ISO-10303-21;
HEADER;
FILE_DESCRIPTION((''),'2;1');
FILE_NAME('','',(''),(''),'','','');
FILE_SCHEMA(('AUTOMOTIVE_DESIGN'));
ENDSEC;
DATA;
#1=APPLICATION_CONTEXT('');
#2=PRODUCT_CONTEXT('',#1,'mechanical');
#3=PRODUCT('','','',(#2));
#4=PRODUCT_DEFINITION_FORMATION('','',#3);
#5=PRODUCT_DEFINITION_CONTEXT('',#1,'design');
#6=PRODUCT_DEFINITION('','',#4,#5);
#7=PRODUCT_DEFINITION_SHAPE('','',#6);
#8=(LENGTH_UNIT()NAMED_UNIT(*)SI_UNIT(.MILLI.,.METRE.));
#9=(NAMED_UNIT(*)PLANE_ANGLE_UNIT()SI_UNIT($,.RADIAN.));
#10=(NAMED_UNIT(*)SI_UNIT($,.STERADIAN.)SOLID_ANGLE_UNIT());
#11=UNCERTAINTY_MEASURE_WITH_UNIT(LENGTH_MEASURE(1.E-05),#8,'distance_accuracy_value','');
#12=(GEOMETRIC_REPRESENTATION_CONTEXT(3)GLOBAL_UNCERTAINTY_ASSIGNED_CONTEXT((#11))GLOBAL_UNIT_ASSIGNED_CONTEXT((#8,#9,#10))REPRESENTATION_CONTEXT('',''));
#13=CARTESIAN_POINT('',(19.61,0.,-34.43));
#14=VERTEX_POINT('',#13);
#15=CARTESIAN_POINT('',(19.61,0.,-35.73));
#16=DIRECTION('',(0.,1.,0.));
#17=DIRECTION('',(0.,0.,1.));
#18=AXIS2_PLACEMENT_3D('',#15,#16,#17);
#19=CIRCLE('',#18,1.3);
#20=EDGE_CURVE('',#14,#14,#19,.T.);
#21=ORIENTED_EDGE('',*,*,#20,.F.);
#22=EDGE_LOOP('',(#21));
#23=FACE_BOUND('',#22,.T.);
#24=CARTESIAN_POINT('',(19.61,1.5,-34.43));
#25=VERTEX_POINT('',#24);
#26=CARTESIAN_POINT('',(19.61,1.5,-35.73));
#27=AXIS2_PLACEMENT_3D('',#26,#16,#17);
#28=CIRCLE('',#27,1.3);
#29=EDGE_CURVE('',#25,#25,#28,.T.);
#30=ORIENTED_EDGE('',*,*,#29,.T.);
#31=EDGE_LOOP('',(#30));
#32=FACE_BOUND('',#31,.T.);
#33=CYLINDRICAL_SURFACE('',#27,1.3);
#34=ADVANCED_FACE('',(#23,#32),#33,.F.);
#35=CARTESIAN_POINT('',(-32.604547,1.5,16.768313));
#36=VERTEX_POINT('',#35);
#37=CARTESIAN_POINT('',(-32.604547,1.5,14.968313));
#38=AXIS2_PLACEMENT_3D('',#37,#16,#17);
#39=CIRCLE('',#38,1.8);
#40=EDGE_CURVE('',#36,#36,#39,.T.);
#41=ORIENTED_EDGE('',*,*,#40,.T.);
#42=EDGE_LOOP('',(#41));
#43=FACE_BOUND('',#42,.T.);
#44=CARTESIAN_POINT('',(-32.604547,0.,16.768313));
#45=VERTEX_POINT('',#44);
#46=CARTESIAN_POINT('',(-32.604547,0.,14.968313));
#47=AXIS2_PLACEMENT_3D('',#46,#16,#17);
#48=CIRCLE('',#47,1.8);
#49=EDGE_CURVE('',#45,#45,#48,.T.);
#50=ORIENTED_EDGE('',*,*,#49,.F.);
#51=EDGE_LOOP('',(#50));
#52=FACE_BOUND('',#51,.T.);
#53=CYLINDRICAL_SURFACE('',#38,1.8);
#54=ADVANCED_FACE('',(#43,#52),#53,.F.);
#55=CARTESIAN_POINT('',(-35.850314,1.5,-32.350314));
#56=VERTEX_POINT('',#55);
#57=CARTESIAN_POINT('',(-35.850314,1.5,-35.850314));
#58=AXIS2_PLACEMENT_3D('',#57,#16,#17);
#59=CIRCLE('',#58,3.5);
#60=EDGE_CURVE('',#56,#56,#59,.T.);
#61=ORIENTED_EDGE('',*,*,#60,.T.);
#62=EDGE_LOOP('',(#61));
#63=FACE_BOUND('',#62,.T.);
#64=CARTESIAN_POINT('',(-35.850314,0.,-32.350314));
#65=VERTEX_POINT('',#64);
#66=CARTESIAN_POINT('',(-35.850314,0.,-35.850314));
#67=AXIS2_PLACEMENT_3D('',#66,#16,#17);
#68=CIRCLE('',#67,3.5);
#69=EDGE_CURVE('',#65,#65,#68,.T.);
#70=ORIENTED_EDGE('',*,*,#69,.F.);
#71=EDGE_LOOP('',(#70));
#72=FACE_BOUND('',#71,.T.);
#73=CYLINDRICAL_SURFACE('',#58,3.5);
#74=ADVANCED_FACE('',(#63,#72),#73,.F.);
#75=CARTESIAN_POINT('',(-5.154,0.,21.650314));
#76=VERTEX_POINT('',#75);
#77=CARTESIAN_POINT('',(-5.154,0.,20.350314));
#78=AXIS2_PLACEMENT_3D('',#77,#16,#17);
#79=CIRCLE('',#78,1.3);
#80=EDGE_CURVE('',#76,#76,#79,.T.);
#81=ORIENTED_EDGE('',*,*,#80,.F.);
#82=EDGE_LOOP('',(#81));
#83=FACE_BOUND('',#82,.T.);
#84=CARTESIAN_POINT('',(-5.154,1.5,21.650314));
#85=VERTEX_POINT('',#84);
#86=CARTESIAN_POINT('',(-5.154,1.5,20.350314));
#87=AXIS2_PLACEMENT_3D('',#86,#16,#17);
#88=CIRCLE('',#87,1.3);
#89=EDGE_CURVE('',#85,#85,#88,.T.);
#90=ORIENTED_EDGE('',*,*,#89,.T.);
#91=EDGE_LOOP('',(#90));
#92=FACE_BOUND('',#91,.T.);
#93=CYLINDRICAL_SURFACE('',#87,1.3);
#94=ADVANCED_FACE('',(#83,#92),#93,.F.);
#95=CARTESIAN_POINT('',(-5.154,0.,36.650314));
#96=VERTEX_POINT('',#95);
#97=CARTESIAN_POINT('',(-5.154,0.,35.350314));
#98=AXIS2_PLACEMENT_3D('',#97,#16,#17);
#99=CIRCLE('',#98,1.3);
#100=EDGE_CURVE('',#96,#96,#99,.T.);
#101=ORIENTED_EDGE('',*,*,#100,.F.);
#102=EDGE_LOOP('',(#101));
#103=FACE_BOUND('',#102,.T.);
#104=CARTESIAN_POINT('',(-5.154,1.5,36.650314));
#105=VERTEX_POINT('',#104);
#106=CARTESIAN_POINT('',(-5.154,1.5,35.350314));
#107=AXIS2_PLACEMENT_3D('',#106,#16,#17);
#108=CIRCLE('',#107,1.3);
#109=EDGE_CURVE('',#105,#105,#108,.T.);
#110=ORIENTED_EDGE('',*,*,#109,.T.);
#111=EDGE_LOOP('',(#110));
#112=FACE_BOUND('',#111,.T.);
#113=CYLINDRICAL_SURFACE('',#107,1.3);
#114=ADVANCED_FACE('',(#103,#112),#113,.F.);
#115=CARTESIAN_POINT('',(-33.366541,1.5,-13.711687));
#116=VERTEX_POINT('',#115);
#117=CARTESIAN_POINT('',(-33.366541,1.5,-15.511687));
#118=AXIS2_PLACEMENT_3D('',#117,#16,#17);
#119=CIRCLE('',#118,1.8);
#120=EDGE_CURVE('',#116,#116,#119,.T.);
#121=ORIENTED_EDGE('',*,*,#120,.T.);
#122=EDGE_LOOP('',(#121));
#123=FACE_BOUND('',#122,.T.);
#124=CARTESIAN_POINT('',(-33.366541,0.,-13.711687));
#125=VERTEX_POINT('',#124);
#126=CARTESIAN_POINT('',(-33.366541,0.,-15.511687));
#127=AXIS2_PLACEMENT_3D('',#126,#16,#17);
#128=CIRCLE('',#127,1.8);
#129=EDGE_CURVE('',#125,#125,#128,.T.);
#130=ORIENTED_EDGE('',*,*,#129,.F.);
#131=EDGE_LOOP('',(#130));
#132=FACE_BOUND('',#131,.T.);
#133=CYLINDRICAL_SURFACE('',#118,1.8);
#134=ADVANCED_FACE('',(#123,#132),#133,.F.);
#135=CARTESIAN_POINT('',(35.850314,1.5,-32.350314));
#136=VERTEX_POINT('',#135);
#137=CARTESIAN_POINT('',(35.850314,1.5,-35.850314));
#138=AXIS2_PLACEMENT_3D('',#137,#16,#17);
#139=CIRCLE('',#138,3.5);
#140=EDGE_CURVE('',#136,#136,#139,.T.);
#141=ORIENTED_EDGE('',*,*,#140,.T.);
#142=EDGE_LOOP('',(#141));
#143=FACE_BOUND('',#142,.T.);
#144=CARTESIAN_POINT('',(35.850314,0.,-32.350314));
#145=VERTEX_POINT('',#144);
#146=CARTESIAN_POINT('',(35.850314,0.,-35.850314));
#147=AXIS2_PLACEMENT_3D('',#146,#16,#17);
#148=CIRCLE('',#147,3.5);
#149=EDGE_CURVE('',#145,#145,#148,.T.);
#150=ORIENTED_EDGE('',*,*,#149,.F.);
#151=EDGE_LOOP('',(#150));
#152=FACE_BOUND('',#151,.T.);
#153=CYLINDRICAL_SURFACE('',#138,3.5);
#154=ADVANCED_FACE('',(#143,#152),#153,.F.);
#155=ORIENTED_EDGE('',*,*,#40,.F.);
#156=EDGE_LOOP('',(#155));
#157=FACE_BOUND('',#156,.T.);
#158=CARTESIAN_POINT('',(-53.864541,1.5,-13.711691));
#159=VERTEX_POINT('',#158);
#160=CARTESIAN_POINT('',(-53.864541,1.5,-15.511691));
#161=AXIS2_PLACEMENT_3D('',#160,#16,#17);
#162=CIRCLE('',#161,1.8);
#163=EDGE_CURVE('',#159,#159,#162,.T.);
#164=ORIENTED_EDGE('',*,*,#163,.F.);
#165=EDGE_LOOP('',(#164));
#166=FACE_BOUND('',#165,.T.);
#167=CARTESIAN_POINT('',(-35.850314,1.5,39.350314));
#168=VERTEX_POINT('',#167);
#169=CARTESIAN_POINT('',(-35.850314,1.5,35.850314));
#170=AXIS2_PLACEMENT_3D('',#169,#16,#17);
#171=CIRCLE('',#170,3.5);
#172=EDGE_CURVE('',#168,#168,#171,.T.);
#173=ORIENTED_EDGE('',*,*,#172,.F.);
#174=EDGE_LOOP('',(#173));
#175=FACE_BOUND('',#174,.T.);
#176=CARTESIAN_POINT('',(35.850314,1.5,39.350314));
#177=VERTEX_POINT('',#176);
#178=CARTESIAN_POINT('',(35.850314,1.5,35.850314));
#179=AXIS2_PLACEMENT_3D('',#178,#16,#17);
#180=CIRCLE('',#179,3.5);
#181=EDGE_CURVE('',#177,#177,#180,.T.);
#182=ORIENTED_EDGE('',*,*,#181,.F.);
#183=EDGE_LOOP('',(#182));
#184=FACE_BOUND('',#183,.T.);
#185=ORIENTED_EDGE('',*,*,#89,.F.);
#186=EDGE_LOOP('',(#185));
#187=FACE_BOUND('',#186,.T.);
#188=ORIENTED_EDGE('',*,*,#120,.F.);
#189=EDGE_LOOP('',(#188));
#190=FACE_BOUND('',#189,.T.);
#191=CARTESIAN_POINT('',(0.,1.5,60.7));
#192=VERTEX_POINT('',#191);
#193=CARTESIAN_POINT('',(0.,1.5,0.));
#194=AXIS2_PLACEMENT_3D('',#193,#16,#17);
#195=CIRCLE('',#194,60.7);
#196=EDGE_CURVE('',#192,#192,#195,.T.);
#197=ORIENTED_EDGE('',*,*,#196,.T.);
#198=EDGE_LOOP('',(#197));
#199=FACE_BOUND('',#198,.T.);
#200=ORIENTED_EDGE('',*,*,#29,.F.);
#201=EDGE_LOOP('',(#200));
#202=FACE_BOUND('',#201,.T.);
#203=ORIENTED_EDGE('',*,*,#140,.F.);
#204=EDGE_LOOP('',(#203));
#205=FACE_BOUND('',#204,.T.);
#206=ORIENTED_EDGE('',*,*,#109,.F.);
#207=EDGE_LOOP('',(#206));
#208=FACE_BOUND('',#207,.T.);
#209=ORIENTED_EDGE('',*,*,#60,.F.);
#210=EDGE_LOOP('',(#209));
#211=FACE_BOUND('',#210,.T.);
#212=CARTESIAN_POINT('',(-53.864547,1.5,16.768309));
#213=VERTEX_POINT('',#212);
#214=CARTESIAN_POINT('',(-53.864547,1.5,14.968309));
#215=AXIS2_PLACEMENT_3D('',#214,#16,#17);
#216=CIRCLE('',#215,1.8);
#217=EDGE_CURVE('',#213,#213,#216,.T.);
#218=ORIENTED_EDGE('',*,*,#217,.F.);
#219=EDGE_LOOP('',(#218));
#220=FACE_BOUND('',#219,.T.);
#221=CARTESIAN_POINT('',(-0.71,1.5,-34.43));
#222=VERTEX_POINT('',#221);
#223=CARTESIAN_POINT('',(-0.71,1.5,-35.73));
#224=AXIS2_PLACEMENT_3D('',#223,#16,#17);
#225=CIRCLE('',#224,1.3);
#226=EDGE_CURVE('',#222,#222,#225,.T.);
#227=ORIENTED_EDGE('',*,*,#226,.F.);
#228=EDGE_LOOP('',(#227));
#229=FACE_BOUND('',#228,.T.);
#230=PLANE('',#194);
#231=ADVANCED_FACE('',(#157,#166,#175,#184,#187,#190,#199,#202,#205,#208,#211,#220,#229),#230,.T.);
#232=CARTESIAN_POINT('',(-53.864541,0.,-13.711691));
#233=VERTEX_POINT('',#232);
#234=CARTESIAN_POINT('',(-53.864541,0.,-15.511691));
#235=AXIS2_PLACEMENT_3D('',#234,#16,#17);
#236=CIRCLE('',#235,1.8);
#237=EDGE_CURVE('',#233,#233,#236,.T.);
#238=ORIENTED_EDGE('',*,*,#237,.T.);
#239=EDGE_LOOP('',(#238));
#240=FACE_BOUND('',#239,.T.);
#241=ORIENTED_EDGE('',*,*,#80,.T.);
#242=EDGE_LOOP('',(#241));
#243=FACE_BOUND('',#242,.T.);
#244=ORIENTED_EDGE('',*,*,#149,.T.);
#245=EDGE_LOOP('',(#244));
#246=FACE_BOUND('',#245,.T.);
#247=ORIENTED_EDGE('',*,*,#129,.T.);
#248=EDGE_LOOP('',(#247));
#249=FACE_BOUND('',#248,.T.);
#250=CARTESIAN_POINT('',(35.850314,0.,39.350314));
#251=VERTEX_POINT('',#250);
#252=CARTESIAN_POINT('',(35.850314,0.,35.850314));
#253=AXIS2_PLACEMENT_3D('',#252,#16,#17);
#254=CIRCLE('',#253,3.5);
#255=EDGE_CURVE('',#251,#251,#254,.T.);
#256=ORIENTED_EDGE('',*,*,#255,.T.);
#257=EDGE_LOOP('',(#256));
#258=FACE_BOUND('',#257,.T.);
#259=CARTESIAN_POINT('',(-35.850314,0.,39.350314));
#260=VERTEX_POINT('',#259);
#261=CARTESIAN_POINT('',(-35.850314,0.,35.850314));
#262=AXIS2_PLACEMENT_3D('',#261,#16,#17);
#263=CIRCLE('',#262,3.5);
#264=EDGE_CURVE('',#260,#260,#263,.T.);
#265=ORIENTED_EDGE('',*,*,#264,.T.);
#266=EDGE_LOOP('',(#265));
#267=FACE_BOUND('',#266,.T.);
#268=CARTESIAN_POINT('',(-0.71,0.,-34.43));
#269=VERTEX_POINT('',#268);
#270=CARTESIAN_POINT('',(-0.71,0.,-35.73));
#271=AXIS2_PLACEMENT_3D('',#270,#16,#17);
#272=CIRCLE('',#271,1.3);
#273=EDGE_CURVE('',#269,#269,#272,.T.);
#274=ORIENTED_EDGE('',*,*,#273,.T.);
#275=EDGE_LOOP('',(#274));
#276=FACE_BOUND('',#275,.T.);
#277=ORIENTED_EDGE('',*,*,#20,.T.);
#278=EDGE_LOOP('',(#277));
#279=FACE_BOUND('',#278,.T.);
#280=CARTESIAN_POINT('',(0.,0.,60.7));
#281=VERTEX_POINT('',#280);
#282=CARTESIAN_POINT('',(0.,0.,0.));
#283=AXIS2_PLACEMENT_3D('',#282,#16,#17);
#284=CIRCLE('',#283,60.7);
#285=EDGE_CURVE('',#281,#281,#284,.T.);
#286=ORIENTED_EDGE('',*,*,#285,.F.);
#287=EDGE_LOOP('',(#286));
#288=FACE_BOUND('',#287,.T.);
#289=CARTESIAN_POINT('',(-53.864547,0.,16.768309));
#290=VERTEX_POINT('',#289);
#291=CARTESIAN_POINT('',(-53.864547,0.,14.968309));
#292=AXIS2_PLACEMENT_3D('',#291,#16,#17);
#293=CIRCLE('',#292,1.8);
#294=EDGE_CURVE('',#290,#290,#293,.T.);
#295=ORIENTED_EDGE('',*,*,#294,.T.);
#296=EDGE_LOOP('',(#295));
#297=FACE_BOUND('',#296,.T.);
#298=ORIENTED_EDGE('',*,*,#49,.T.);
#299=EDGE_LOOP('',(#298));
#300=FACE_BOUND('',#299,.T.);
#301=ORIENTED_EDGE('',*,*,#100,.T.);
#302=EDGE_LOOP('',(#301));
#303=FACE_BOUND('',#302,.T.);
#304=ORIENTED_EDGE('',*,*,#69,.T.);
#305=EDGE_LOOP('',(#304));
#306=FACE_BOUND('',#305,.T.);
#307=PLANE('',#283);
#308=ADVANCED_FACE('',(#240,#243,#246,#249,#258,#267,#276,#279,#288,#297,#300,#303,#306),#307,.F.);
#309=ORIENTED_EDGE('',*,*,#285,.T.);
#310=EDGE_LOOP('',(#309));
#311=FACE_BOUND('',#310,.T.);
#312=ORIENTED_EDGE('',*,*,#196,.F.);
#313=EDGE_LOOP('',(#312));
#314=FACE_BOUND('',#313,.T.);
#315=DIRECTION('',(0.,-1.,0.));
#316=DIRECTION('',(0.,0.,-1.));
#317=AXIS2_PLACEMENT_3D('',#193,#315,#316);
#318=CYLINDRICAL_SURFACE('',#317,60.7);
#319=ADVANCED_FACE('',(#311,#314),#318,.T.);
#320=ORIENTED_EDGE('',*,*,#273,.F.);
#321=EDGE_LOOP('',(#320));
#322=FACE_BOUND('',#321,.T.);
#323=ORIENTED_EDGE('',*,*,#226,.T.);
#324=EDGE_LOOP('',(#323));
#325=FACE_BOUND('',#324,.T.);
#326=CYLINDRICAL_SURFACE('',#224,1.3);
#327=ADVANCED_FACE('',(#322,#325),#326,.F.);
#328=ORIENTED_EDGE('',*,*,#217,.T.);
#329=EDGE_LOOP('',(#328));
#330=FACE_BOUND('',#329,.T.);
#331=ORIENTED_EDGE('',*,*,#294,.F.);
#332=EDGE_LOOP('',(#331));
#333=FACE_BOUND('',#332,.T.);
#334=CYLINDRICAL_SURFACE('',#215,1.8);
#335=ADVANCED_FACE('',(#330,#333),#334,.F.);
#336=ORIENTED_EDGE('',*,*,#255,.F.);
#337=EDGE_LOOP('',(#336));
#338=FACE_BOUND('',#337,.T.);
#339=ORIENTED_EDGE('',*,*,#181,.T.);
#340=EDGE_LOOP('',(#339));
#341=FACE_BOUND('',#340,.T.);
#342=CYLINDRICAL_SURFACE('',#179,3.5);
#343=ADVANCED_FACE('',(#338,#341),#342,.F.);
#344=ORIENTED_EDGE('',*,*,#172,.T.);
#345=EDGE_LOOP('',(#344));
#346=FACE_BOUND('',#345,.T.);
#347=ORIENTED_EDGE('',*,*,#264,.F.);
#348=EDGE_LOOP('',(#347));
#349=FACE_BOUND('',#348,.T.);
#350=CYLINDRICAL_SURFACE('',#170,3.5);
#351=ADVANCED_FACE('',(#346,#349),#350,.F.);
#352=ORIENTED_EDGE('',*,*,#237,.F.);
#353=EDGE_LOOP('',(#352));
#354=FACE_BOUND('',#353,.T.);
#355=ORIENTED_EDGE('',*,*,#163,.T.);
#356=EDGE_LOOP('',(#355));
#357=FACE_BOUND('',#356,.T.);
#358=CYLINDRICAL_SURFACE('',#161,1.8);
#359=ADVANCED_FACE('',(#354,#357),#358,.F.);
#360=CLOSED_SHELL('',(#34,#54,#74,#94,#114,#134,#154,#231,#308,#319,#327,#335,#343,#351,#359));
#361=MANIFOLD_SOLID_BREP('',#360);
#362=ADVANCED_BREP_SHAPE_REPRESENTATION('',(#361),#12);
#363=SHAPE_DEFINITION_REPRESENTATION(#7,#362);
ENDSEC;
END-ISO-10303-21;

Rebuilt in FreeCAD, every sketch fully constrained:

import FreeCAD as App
import Part
import Sketcher

doc = App.newDocument("Part")
body = doc.addObject("PartDesign::Body", "Body")

# Sketch on XZ plane
sketch1 = doc.addObject("Sketcher::SketchObject", "Sketch")
body.addObject(sketch1)
sketch1.AttachmentSupport = (doc.XZ_Plane, [""])
sketch1.MapMode = "FlatFace"
sketch1.addGeometry(Part.Circle(App.Vector(0, 0, 0), App.Vector(0, 0, 1), 61), False)
sketch1.addConstraint([
    Sketcher.Constraint("Coincident", 0, 3, -1, 1),
    Sketcher.Constraint("Diameter", 0, 121.4),
])
pad1 = doc.addObject("PartDesign::Pad", "Pad")
body.addObject(pad1)
pad1.Profile = sketch1
pad1.Length = 1.5
pad1.Reversed = True

# Sketch on XZ plane
sketch2 = doc.addObject("Sketcher::SketchObject", "Sketch001")
body.addObject(sketch2)
sketch2.AttachmentSupport = (doc.XZ_Plane, [""])
sketch2.MapMode = "FlatFace"
sketch2.AttachmentOffset = App.Placement(App.Vector(0, 0, -1.5), App.Rotation())
sketch2.addGeometry(Part.Circle(App.Vector(-35.9, 35.9, 0), App.Vector(0, 0, 1), 3.5), False)
sketch2.addConstraint([
    Sketcher.Constraint("Diameter", 0, 7.0),
    Sketcher.Constraint("DistanceX", 0, 3, -1, 1, 35.850314),
    Sketcher.Constraint("DistanceY", -1, 1, 0, 3, 35.850314),
])
doc.recompute()
hole = doc.addObject("PartDesign::Hole", "Hole")
body.addObject(hole)
hole.Profile = sketch2
hole.ThreadType = "None"
hole.Diameter = 7
hole.DepthType = "ThroughAll"
hole.Reversed = True
doc.recompute()

polarpattern = doc.addObject("PartDesign::PolarPattern", "PolarPattern")
body.addObject(polarpattern)
polarpattern.Originals = [hole]
polarpattern.Axis = (doc.Y_Axis, [""])
polarpattern.Angle = 360
polarpattern.Occurrences = 4
body.Tip = polarpattern

# Sketch on XZ plane
sketch3 = doc.addObject("Sketcher::SketchObject", "Sketch002")
body.addObject(sketch3)
sketch3.AttachmentSupport = (doc.XZ_Plane, [""])
sketch3.MapMode = "FlatFace"
sketch3.AttachmentOffset = App.Placement(App.Vector(0, 0, -1.5), App.Rotation())
sketch3.addGeometry([
    Part.Circle(App.Vector(-0.7, -35.7, 0), App.Vector(0, 0, 1), 1.3),
    Part.Circle(App.Vector(19.6, -35.7, 0), App.Vector(0, 0, 1), 1.3),
    Part.Circle(App.Vector(-5.2, 20.4, 0), App.Vector(0, 0, 1), 1.3),
    Part.Circle(App.Vector(-5.2, 35.4, 0), App.Vector(0, 0, 1), 1.3),
], False)
sketch3.addConstraint([
    Sketcher.Constraint("Equal", 0, 1),
    Sketcher.Constraint("Equal", 1, 2),
    Sketcher.Constraint("Equal", 2, 3),
    Sketcher.Constraint("Horizontal", 0, 3, 1, 3),
    Sketcher.Constraint("Vertical", 2, 3, 3, 3),
    Sketcher.Constraint("Diameter", 0, 2.6),
    Sketcher.Constraint("DistanceY", 2, 3, 3, 3, 15.0),
    Sketcher.Constraint("DistanceX", 0, 3, -1, 1, 0.71),
    Sketcher.Constraint("DistanceY", 0, 3, -1, 1, 35.73),
    Sketcher.Constraint("DistanceX", -1, 1, 1, 3, 19.61),
    Sketcher.Constraint("DistanceX", 2, 3, -1, 1, 5.154),
    Sketcher.Constraint("DistanceY", -1, 1, 2, 3, 20.350314),
])
doc.recompute()
hole2 = doc.addObject("PartDesign::Hole", "Hole001")
body.addObject(hole2)
hole2.Profile = sketch3
hole2.ThreadType = "None"
hole2.Diameter = 2.6
hole2.DepthType = "ThroughAll"
hole2.Reversed = True

# Sketch on XZ plane
sketch4 = doc.addObject("Sketcher::SketchObject", "Sketch003")
body.addObject(sketch4)
sketch4.AttachmentSupport = (doc.XZ_Plane, [""])
sketch4.MapMode = "FlatFace"
sketch4.AttachmentOffset = App.Placement(App.Vector(0, 0, -1.5), App.Rotation())
sketch4.addGeometry([
    Part.Circle(App.Vector(-53.9, -15.5, 0), App.Vector(0, 0, 1), 1.8),
    Part.Circle(App.Vector(-53.9, 15, 0), App.Vector(0, 0, 1), 1.8),
    Part.Circle(App.Vector(-32.6, 15, 0), App.Vector(0, 0, 1), 1.8),
    Part.Circle(App.Vector(-33.4, -15.5, 0), App.Vector(0, 0, 1), 1.8),
], False)
sketch4.addConstraint([
    Sketcher.Constraint("Equal", 0, 1),
    Sketcher.Constraint("Equal", 1, 2),
    Sketcher.Constraint("Equal", 2, 3),
    Sketcher.Constraint("Diameter", 0, 3.6),
    Sketcher.Constraint("DistanceY", 0, 3, 1, 3, 30.48),
    Sketcher.Constraint("DistanceX", 1, 3, 2, 3, 21.26),
    Sketcher.Constraint("DistanceY", 3, 3, 2, 3, 30.48),
    Sketcher.Constraint("DistanceX", 0, 3, 3, 3, 20.498),
    Sketcher.Constraint("DistanceX", 0, 3, -1, 1, 53.864541),
    Sketcher.Constraint("DistanceY", 0, 3, -1, 1, 15.511691),
    Sketcher.Constraint("DistanceX", 1, 3, -1, 1, 53.864547),
    Sketcher.Constraint("DistanceY", -1, 1, 2, 3, 14.968313),
])
doc.recompute()
hole3 = doc.addObject("PartDesign::Hole", "Hole002")
body.addObject(hole3)
hole3.Profile = sketch4
hole3.ThreadType = "None"
hole3.Diameter = 3.6
hole3.DepthType = "ThroughAll"
hole3.Reversed = True

doc.recompute()
